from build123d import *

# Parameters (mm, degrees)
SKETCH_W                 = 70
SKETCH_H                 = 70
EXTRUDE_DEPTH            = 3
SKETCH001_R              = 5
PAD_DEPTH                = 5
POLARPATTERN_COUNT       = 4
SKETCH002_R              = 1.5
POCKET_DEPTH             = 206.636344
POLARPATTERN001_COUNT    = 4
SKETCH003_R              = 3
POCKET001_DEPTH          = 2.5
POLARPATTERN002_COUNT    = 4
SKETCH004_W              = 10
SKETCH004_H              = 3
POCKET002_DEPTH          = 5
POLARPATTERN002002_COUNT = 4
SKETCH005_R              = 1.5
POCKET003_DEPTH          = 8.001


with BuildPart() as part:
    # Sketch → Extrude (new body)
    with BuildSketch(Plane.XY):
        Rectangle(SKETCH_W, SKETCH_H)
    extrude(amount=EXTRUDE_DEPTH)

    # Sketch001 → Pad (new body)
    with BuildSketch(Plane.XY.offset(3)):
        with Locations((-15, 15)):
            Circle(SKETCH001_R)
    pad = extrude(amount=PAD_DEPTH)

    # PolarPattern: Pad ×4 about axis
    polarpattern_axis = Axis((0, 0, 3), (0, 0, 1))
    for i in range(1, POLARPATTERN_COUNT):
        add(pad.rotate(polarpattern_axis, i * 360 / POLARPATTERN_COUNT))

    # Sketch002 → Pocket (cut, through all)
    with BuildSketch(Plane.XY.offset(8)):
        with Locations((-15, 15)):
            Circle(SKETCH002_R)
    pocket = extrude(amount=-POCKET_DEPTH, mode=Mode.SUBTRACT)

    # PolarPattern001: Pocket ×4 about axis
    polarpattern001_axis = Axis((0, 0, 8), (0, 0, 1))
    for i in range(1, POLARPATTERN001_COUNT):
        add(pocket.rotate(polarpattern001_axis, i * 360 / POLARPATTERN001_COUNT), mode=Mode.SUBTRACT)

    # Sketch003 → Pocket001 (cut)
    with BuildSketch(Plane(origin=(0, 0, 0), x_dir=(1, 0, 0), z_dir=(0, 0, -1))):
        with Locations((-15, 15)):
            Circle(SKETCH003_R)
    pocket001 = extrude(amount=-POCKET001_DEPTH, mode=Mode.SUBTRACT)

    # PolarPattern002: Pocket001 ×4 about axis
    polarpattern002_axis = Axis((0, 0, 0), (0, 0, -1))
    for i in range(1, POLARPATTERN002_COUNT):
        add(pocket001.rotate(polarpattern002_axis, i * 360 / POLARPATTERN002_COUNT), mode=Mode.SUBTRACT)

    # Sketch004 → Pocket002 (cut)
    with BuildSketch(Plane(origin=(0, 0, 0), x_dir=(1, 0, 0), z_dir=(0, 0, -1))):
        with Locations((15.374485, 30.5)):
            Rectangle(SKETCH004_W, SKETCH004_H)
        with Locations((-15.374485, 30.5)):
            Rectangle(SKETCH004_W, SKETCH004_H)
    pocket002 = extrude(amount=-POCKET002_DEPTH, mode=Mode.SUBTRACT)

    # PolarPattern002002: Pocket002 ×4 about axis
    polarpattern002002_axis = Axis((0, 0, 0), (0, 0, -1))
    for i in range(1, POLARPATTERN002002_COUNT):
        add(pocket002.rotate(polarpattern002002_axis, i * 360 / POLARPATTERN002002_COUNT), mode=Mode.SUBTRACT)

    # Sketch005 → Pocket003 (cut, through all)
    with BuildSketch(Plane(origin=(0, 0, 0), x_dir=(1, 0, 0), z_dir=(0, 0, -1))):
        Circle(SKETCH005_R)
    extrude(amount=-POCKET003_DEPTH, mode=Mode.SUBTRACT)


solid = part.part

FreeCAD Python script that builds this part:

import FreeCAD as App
import Part
import Sketcher
from FreeCAD import Vector


def add_polygon(sketch, points):
    """Adds a closed chain of lines whose ends are joined by coincident constraints."""
    first, n = sketch.GeometryCount, len(points)
    for a, b in zip(points, points[1:] + points[:1]):
        sketch.addGeometry(Part.LineSegment(App.Vector(*a, 0), App.Vector(*b, 0)), False)
    for i in range(n):
        sketch.addConstraint(Sketcher.Constraint("Coincident", first + i, 2, first + (i + 1) % n, 1))

doc = App.newDocument("Part")
params = doc.addObject("Spreadsheet::Sheet", "Params")
for row, (alias, value) in enumerate([
    ("sketch1_width", "70 mm"),
    ("pad1_length", "3 mm"),
    ("sketch2_diameter", "10 mm"),
    ("pad2_length", "5 mm"),
    ("sketch3_diameter", "3 mm"),
    ("sketch4_diameter", "6 mm"),
    ("pocket2_length", "2.5 mm"),
    ("sketch5_width", "10 mm"),
    ("sketch5_height", "3 mm"),
    ("pocket3_length", "5 mm"),
    ("sketch6_diameter", "3 mm"),
], start=1):
    params.set(f"A{row}", alias)
    params.set(f"B{row}", "=" + value)
    params.setAlias(f"B{row}", alias)

body = doc.addObject("PartDesign::Body", "Body")

# Sketch on XY plane
sketch1 = body.newObject("Sketcher::SketchObject", "Sketch")
sketch1.AttachmentSupport = (doc.getObject("XY_Plane"), [""])
sketch1.MapMode = "FlatFace"
add_polygon(sketch1, [(-35, 35), (-35, -35), (35, -35), (35, 35)])  # lines 0-3
sketch1.addConstraint(Sketcher.Constraint("Vertical", 0))
sketch1.addConstraint(Sketcher.Constraint("Horizontal", 1))
sketch1.addConstraint(Sketcher.Constraint("Vertical", 2))
sketch1.addConstraint(Sketcher.Constraint("Horizontal", 3))
sketch1.addConstraint(Sketcher.Constraint("Symmetric", 0, 2, 2, 2, -1, 1))
sketch1.addConstraint(Sketcher.Constraint("Equal", 3, 0))
sketch1.addConstraint(Sketcher.Constraint("DistanceX", 1, 1, 1, 2, 70.0))
sketch1.setExpression("Constraints[10]", "Params.sketch1_width")
pad1 = body.newObject("PartDesign::Pad", "Pad")
pad1.Profile = sketch1
pad1.setExpression("Length", "Params.pad1_length")

# Sketch on XY plane
sketch2 = body.newObject("Sketcher::SketchObject", "Sketch001")
sketch2.AttachmentSupport = (doc.getObject("XY_Plane"), [""])
sketch2.MapMode = "FlatFace"
sketch2.AttachmentOffset = App.Placement(Vector(0, 0, 3), App.Rotation())
sketch2.addGeometry(Part.Circle(Vector(-15, 15, 0), Vector(0, 0, 1), 5), False)
sketch2.addConstraint(Sketcher.Constraint("Diameter", 0, 10.0))
sketch2.addConstraint(Sketcher.Constraint("DistanceX", 0, 3, -1, 1, 15.0))
sketch2.addConstraint(Sketcher.Constraint("DistanceY", -1, 1, 0, 3, 15.0))
sketch2.setExpression("Constraints[0]", "Params.sketch2_diameter")
pad2 = body.newObject("PartDesign::Pad", "Pad001")
pad2.Profile = sketch2
pad2.setExpression("Length", "Params.pad2_length")
doc.recompute()

polarpattern = body.newObject("PartDesign::PolarPattern", "PolarPattern")
polarpattern.Originals = [pad2]
polarpattern.Axis = (doc.getObject("Z_Axis"), [""])
polarpattern.Angle = 360
polarpattern.Occurrences = 4
body.Tip = polarpattern

# Sketch on XY plane
sketch3 = body.newObject("Sketcher::SketchObject", "Sketch002")
sketch3.AttachmentSupport = (doc.getObject("XY_Plane"), [""])
sketch3.MapMode = "FlatFace"
sketch3.AttachmentOffset = App.Placement(Vector(0, 0, 8), App.Rotation())
sketch3.addGeometry(Part.Circle(Vector(-15, 15, 0), Vector(0, 0, 1), 1.5), False)
sketch3.addConstraint(Sketcher.Constraint("Diameter", 0, 3.0))
sketch3.addConstraint(Sketcher.Constraint("DistanceX", 0, 3, -1, 1, 15.0))
sketch3.addConstraint(Sketcher.Constraint("DistanceY", -1, 1, 0, 3, 15.0))
sketch3.setExpression("Constraints[0]", "Params.sketch3_diameter")
pocket1 = body.newObject("PartDesign::Pocket", "Pocket")
pocket1.Profile = sketch3
pocket1.Type = "ThroughAll"
doc.recompute()

polarpattern2 = body.newObject("PartDesign::PolarPattern", "PolarPattern001")
polarpattern2.Originals = [pocket1]
polarpattern2.Axis = (doc.getObject("Z_Axis"), [""])
polarpattern2.Angle = 360
polarpattern2.Occurrences = 4
body.Tip = polarpattern2

# Sketch on XY plane
sketch4 = body.newObject("Sketcher::SketchObject", "Sketch003")
sketch4.AttachmentSupport = (doc.getObject("XY_Plane"), [""])
sketch4.MapMode = "FlatFace"
sketch4.addGeometry(Part.Circle(Vector(-15, -15, 0), Vector(0, 0, 1), 3), False)
sketch4.addConstraint(Sketcher.Constraint("Diameter", 0, 6.0))
sketch4.addConstraint(Sketcher.Constraint("DistanceX", 0, 3, -1, 1, 15.0))
sketch4.addConstraint(Sketcher.Constraint("DistanceY", 0, 3, -1, 1, 15.0))
sketch4.setExpression("Constraints[0]", "Params.sketch4_diameter")
pocket2 = body.newObject("PartDesign::Pocket", "Pocket001")
pocket2.Profile = sketch4
pocket2.setExpression("Length", "Params.pocket2_length")
pocket2.Reversed = True
doc.recompute()

polarpattern3 = body.newObject("PartDesign::PolarPattern", "PolarPattern002")
polarpattern3.Originals = [pocket2]
polarpattern3.Axis = (doc.getObject("Z_Axis"), [""])
polarpattern3.Angle = 360
polarpattern3.Occurrences = 4
body.Tip = polarpattern3

# Sketch on XY plane
sketch5 = body.newObject("Sketcher::SketchObject", "Sketch004")
sketch5.AttachmentSupport = (doc.getObject("XY_Plane"), [""])
sketch5.MapMode = "FlatFace"
add_polygon(sketch5, [(10.4, -32), (10.4, -29), (20.4, -29), (20.4, -32)])  # lines 0-3
add_polygon(sketch5, [(-20.4, -32), (-20.4, -29), (-10.4, -29), (-10.4, -32)])  # lines 4-7
sketch5.addConstraint(Sketcher.Constraint("Vertical", 0))
sketch5.addConstraint(Sketcher.Constraint("Horizontal", 1))
sketch5.addConstraint(Sketcher.Constraint("Vertical", 2))
sketch5.addConstraint(Sketcher.Constraint("Horizontal", 3))
sketch5.addConstraint(Sketcher.Constraint("Vertical", 4))
sketch5.addConstraint(Sketcher.Constraint("Horizontal", 5))
sketch5.addConstraint(Sketcher.Constraint("Vertical", 6))
sketch5.addConstraint(Sketcher.Constraint("Horizontal", 7))
sketch5.addConstraint(Sketcher.Constraint("Symmetric", 1, 2, 4, 2, -2))
sketch5.addConstraint(Sketcher.Constraint("Symmetric", 3, 2, 6, 2, -2))
sketch5.addConstraint(Sketcher.Constraint("DistanceX", 1, 1, 1, 2, 10.0))
sketch5.addConstraint(Sketcher.Constraint("DistanceY", 0, 1, 0, 2, 3.0))
sketch5.addConstraint(Sketcher.Constraint("DistanceY", 0, 2, -1, 1, 29.0))
sketch5.addConstraint(Sketcher.Constraint("DistanceX", 4, 2, 0, 2, 30.74897))
sketch5.setExpression("Constraints[18]", "Params.sketch5_width")
sketch5.setExpression("Constraints[19]", "Params.sketch5_height")
pocket3 = body.newObject("PartDesign::Pocket", "Pocket002")
pocket3.Profile = sketch5
pocket3.setExpression("Length", "Params.pocket3_length")
pocket3.Reversed = True
doc.recompute()

polarpattern4 = body.newObject("PartDesign::PolarPattern", "PolarPattern003")
polarpattern4.Originals = [pocket3]
polarpattern4.Axis = (doc.getObject("Z_Axis"), [""])
polarpattern4.Angle = 360
polarpattern4.Occurrences = 4
body.Tip = polarpattern4

# Sketch on XY plane
sketch6 = body.newObject("Sketcher::SketchObject", "Sketch005")
sketch6.AttachmentSupport = (doc.getObject("XY_Plane"), [""])
sketch6.MapMode = "FlatFace"
sketch6.addGeometry(Part.Circle(Vector(0, 0, 0), Vector(0, 0, 1), 1.5), False)
sketch6.addConstraint(Sketcher.Constraint("Coincident", 0, 3, -1, 1))
sketch6.addConstraint(Sketcher.Constraint("Diameter", 0, 3.0))
sketch6.setExpression("Constraints[1]", "Params.sketch6_diameter")
pocket4 = body.newObject("PartDesign::Pocket", "Pocket003")
pocket4.Profile = sketch6
pocket4.Type = "ThroughAll"
pocket4.Reversed = True

doc.recompute()
